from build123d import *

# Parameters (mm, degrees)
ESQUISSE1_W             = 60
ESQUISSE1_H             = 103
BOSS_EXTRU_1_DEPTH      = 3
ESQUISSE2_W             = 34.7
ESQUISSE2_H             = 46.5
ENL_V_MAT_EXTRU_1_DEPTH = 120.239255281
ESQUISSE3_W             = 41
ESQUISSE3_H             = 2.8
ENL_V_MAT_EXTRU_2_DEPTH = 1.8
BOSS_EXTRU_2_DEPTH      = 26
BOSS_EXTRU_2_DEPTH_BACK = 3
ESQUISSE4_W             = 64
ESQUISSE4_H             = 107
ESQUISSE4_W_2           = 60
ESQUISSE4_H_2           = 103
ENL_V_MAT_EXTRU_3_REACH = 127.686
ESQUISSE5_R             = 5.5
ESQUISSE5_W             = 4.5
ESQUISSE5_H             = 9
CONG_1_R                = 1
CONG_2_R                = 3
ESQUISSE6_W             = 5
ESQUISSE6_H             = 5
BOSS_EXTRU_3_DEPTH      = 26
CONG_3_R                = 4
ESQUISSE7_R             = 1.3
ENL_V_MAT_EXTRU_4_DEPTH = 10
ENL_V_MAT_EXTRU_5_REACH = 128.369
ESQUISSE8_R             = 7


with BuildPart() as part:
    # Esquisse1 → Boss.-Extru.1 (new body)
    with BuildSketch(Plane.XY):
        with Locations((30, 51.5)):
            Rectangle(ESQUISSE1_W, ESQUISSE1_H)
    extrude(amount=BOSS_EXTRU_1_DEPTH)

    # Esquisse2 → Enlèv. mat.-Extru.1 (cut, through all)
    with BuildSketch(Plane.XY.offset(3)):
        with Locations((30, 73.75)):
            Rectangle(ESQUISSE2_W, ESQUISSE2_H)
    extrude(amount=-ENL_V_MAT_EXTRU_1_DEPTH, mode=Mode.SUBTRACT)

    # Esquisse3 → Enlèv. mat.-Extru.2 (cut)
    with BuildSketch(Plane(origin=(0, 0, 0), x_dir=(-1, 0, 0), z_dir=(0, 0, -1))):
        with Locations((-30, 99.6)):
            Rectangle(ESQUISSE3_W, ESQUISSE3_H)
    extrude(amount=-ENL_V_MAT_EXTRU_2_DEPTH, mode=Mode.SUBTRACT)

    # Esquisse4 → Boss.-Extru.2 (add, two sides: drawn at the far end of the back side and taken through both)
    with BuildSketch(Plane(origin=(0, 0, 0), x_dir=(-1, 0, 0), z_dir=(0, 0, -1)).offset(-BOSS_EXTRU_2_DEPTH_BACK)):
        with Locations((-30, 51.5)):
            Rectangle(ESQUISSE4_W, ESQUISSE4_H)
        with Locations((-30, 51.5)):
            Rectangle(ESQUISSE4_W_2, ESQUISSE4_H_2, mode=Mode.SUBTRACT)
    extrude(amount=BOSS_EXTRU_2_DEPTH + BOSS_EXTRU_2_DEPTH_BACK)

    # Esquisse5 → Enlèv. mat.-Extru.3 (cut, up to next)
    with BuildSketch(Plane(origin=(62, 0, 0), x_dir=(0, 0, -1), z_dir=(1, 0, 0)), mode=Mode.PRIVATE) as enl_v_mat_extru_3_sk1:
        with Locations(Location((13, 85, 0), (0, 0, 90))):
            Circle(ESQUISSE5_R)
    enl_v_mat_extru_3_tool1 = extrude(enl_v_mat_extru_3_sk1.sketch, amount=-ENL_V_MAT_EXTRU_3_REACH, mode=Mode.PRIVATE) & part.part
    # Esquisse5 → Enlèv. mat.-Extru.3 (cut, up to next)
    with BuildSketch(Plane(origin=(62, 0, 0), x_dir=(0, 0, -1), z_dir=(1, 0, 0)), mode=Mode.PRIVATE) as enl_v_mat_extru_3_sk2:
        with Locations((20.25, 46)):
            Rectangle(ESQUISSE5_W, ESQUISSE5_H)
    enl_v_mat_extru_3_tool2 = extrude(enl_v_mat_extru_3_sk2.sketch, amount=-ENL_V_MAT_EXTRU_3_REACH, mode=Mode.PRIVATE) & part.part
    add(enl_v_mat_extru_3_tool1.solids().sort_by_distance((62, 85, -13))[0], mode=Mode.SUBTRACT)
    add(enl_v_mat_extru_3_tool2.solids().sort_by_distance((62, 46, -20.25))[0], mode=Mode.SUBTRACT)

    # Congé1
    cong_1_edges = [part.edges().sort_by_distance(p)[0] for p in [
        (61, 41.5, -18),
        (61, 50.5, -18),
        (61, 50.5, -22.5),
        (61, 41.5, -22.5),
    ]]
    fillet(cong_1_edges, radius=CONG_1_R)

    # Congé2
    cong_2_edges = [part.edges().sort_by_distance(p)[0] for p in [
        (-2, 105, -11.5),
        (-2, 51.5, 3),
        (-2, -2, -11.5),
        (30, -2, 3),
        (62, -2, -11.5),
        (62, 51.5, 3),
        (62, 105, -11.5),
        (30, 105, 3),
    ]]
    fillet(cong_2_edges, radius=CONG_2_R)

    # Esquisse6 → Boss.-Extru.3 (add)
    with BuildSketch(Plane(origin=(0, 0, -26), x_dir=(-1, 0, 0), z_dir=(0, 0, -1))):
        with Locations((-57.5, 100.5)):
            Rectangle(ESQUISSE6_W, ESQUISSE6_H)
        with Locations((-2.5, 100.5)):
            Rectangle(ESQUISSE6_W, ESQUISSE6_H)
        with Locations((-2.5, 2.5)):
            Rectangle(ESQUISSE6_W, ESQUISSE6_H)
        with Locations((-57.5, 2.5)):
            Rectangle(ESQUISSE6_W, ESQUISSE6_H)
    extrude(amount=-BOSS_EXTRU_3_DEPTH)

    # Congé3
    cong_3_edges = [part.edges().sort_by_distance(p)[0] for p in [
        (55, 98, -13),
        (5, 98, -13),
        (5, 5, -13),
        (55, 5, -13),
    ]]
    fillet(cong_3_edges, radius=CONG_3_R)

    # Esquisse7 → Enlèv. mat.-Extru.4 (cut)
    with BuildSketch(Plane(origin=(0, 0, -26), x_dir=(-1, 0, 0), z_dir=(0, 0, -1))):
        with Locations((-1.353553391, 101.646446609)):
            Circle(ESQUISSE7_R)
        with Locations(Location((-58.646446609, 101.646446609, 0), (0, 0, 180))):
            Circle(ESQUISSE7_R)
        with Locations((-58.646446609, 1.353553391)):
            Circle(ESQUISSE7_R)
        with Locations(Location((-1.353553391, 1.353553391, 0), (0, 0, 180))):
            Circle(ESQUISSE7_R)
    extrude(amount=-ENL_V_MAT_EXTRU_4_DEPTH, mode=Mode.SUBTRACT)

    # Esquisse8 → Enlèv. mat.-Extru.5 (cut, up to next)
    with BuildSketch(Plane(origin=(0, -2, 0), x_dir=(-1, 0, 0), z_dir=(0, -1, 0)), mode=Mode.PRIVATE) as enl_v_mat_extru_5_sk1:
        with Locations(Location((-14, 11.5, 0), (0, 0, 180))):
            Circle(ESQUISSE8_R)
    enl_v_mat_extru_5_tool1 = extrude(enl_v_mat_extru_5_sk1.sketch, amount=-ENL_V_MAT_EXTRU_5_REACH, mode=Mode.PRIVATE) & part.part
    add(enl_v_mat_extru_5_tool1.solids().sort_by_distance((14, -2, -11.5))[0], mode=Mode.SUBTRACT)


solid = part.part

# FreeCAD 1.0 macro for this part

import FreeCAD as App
import Part
import Sketcher

V = App.Vector


def edges_at(feature, points):
    """Names of the edges that pass closest to the given points."""
    edges = feature.Shape.Edges
    near = lambda p: min(range(len(edges)), key=lambda i: edges[i].distToShape(Part.Vertex(*p))[0])
    return sorted({f"Edge{near(p) + 1}" for p in points})


def add_polygon(sketch, points):
    """Adds a closed chain of lines whose ends are joined by coincident constraints."""
    first, n = sketch.GeometryCount, len(points)
    for a, b in zip(points, points[1:] + points[:1]):
        sketch.addGeometry(Part.LineSegment(App.Vector(*a, 0), App.Vector(*b, 0)), False)
    for i in range(n):
        sketch.addConstraint(Sketcher.Constraint("Coincident", first + i, 2, first + (i + 1) % n, 1))

doc = App.newDocument("Part")
body = doc.addObject("PartDesign::Body", "Body")

# Sketch on XY plane
sketch1 = body.newObject("Sketcher::SketchObject", "Sketch")
sketch1.AttachmentSupport = (doc.getObject("XY_Plane"), [""])
sketch1.MapMode = "FlatFace"
add_polygon(sketch1, [(0, 103), (0, 0), (60, 0), (60, 103)])  # lines 0-3
sketch1.addConstraint(Sketcher.Constraint("Vertical", 0))
sketch1.addConstraint(Sketcher.Constraint("Horizontal", 1))
sketch1.addConstraint(Sketcher.Constraint("Vertical", 2))
sketch1.addConstraint(Sketcher.Constraint("Horizontal", 3))
sketch1.addConstraint(Sketcher.Constraint("Coincident", 0, 2, -1, 1))
sketch1.addConstraint(Sketcher.Constraint("DistanceX", 1, 1, 1, 2, 60.0))
sketch1.addConstraint(Sketcher.Constraint("DistanceY", 0, 2, 0, 1, 103.0))
pad1 = body.newObject("PartDesign::Pad", "Pad")
pad1.Profile = sketch1
pad1.Length = 3

# Sketch on XY plane
sketch2 = body.newObject("Sketcher::SketchObject", "Sketch001")
sketch2.AttachmentSupport = (doc.getObject("XY_Plane"), [""])
sketch2.MapMode = "FlatFace"
sketch2.AttachmentOffset = App.Placement(V(0, 0, 3), App.Rotation())
add_polygon(sketch2, [(12.65, 97), (12.65, 50.5), (47.35, 50.5), (47.35, 97)])  # lines 0-3
sketch2.addConstraint(Sketcher.Constraint("Vertical", 0))
sketch2.addConstraint(Sketcher.Constraint("Horizontal", 1))
sketch2.addConstraint(Sketcher.Constraint("Vertical", 2))
sketch2.addConstraint(Sketcher.Constraint("Horizontal", 3))
sketch2.addConstraint(Sketcher.Constraint("DistanceX", 1, 1, 1, 2, 34.7))
sketch2.addConstraint(Sketcher.Constraint("DistanceY", 0, 2, 0, 1, 46.5))
sketch2.addConstraint(Sketcher.Constraint("DistanceY", -1, 1, 2, 2, 97.0))
sketch2.addConstraint(Sketcher.Constraint("DistanceX", -1, 1, 0, 2, 12.65))
pocket1 = body.newObject("PartDesign::Pocket", "Pocket")
pocket1.Profile = sketch2
pocket1.Type = "ThroughAll"

# Sketch on XY plane
sketch3 = body.newObject("Sketcher::SketchObject", "Sketch002")
sketch3.AttachmentSupport = (doc.getObject("XY_Plane"), [""])
sketch3.MapMode = "FlatFace"
add_polygon(sketch3, [(50.5, 101), (50.5, 98.2), (9.5, 98.2), (9.5, 101)])  # lines 0-3
sketch3.addConstraint(Sketcher.Constraint("Vertical", 0))
sketch3.addConstraint(Sketcher.Constraint("Horizontal", 1))
sketch3.addConstraint(Sketcher.Constraint("Vertical", 2))
sketch3.addConstraint(Sketcher.Constraint("Horizontal", 3))
sketch3.addConstraint(Sketcher.Constraint("DistanceX", 1, 2, 1, 1, 41.0))
sketch3.addConstraint(Sketcher.Constraint("DistanceY", 0, 2, 0, 1, 2.8))
sketch3.addConstraint(Sketcher.Constraint("DistanceY", -1, 1, 2, 2, 101.0))
sketch3.addConstraint(Sketcher.Constraint("DistanceX", -1, 1, 0, 2, 50.5))
pocket2 = body.newObject("PartDesign::Pocket", "Pocket001")
pocket2.Profile = sketch3
pocket2.Length = 1.8
pocket2.Reversed = True

# Sketch on XY plane
sketch4 = body.newObject("Sketcher::SketchObject", "Sketch003")
sketch4.AttachmentSupport = (doc.getObject("XY_Plane"), [""])
sketch4.MapMode = "FlatFace"
add_polygon(sketch4, [(62, 105), (62, -2), (-2, -2), (-2, 105)])  # lines 0-3
add_polygon(sketch4, [(0, 0), (60, 0), (60, 103), (0, 103)])  # lines 4-7
sketch4.addConstraint(Sketcher.Constraint("Vertical", 0))
sketch4.addConstraint(Sketcher.Constraint("Horizontal", 1))
sketch4.addConstraint(Sketcher.Constraint("Vertical", 2))
sketch4.addConstraint(Sketcher.Constraint("Horizontal", 3))
sketch4.addConstraint(Sketcher.Constraint("Horizontal", 4))
sketch4.addConstraint(Sketcher.Constraint("Vertical", 5))
sketch4.addConstraint(Sketcher.Constraint("Horizontal", 6))
sketch4.addConstraint(Sketcher.Constraint("Vertical", 7))
sketch4.addConstraint(Sketcher.Constraint("Coincident", 7, 2, -1, 1))
sketch4.addConstraint(Sketcher.Constraint("DistanceX", 1, 2, 1, 1, 64.0))
sketch4.addConstraint(Sketcher.Constraint("DistanceX", 4, 1, 4, 2, 60.0))
sketch4.addConstraint(Sketcher.Constraint("DistanceY", 0, 2, 0, 1, 107.0))
sketch4.addConstraint(Sketcher.Constraint("DistanceY", 5, 1, 5, 2, 103.0))
sketch4.addConstraint(Sketcher.Constraint("DistanceX", -1, 1, 0, 2, 62.0))
sketch4.addConstraint(Sketcher.Constraint("DistanceY", 0, 2, -1, 1, 2.0))
pad2 = body.newObject("PartDesign::Pad", "Pad001")
pad2.Profile = sketch4
pad2.Type = "TwoLengths"
pad2.Length = 26
pad2.Length2 = 3
pad2.Reversed = True

# Sketch on YZ plane
sketch5 = body.newObject("Sketcher::SketchObject", "Sketch004")
sketch5.AttachmentSupport = (doc.getObject("YZ_Plane"), [""])
sketch5.MapMode = "FlatFace"
sketch5.AttachmentOffset = App.Placement(V(0, 0, 62), App.Rotation())
sketch5.addGeometry(Part.Circle(V(85, -13, 0), V(0, 0, 1), 5.5), False)
sketch5.addConstraint(Sketcher.Constraint("Diameter", 0, 11.0))
sketch5.addConstraint(Sketcher.Constraint("DistanceX", -1, 1, 0, 3, 85.0))
sketch5.addConstraint(Sketcher.Constraint("DistanceY", 0, 3, -1, 1, 13.0))
pocket3 = body.newObject("PartDesign::Pocket", "Pocket002")
pocket3.Profile = sketch5
pocket3.Type = "UpToFirst"

# Sketch on YZ plane
sketch6 = body.newObject("Sketcher::SketchObject", "Sketch005")
sketch6.AttachmentSupport = (doc.getObject("YZ_Plane"), [""])
sketch6.MapMode = "FlatFace"
sketch6.AttachmentOffset = App.Placement(V(0, 0, 62), App.Rotation())
add_polygon(sketch6, [(50.5, -18), (41.5, -18), (41.5, -22.5), (50.5, -22.5)])  # lines 0-3
sketch6.addConstraint(Sketcher.Constraint("Horizontal", 0))
sketch6.addConstraint(Sketcher.Constraint("Vertical", 1))
sketch6.addConstraint(Sketcher.Constraint("Horizontal", 2))
sketch6.addConstraint(Sketcher.Constraint("Vertical", 3))
sketch6.addConstraint(Sketcher.Constraint("DistanceX", 0, 2, 0, 1, 9.0))
sketch6.addConstraint(Sketcher.Constraint("DistanceY", 1, 2, 1, 1, 4.5))
sketch6.addConstraint(Sketcher.Constraint("DistanceY", 0, 2, -1, 1, 18.0))
sketch6.addConstraint(Sketcher.Constraint("DistanceX", -1, 1, 0, 2, 41.5))
pocket4 = body.newObject("PartDesign::Pocket", "Pocket003")
pocket4.Profile = sketch6
pocket4.Type = "UpToFirst"
doc.recompute()

fillet = body.newObject("PartDesign::Fillet", "Fillet")
fillet.Base = (pocket4, edges_at(pocket4, [
    (61, 41.5, -18),
    (61, 50.5, -18),
    (61, 50.5, -22.5),
    (61, 41.5, -22.5),
]))
fillet.Radius = 1
doc.recompute()

fillet2 = body.newObject("PartDesign::Fillet", "Fillet001")
fillet2.Base = (fillet, edges_at(fillet, [
    (-2, 105, -11.5),
    (-2, 51.5, 3),
    (-2, -2, -11.5),
    (30, -2, 3),
    (62, -2, -11.5),
    (62, 51.5, 3),
    (62, 105, -11.5),
    (30, 105, 3),
]))
fillet2.Radius = 3

# Sketch on XY plane
sketch7 = body.newObject("Sketcher::SketchObject", "Sketch006")
sketch7.AttachmentSupport = (doc.getObject("XY_Plane"), [""])
sketch7.MapMode = "FlatFace"
sketch7.AttachmentOffset = App.Placement(V(0, 0, -26), App.Rotation())
add_polygon(sketch7, [(60, 103), (60, 98), (55, 98), (55, 103)])  # lines 0-3
add_polygon(sketch7, [(5, 103), (5, 98), (0, 98), (0, 103)])  # lines 4-7
add_polygon(sketch7, [(5, 5), (5, 0), (0, 0), (0, 5)])  # lines 8-11
add_polygon(sketch7, [(60, 5), (60, 0), (55, 0), (55, 5)])  # lines 12-15
sketch7.addConstraint(Sketcher.Constraint("Vertical", 0))
sketch7.addConstraint(Sketcher.Constraint("Horizontal", 1))
sketch7.addConstraint(Sketcher.Constraint("Vertical", 2))
sketch7.addConstraint(Sketcher.Constraint("Horizontal", 3))
sketch7.addConstraint(Sketcher.Constraint("Vertical", 4))
sketch7.addConstraint(Sketcher.Constraint("Horizontal", 5))
sketch7.addConstraint(Sketcher.Constraint("Vertical", 6))
sketch7.addConstraint(Sketcher.Constraint("Horizontal", 7))
sketch7.addConstraint(Sketcher.Constraint("Vertical", 8))
sketch7.addConstraint(Sketcher.Constraint("Horizontal", 9))
sketch7.addConstraint(Sketcher.Constraint("Vertical", 10))
sketch7.addConstraint(Sketcher.Constraint("Horizontal", 11))
sketch7.addConstraint(Sketcher.Constraint("Vertical", 12))
sketch7.addConstraint(Sketcher.Constraint("Horizontal", 13))
sketch7.addConstraint(Sketcher.Constraint("Vertical", 14))
sketch7.addConstraint(Sketcher.Constraint("Horizontal", 15))
sketch7.addConstraint(Sketcher.Constraint("Coincident", 9, 2, -1, 1))
sketch7.addConstraint(Sketcher.Constraint("PointOnObject", 5, 2, -2))
sketch7.addConstraint(Sketcher.Constraint("PointOnObject", 12, 2, -1))
sketch7.addConstraint(Sketcher.Constraint("Horizontal", 1, 2, 4, 2))
sketch7.addConstraint(Sketcher.Constraint("Horizontal", 3, 2, 6, 2))
sketch7.addConstraint(Sketcher.Constraint("Horizontal", 11, 2, 14, 2))
sketch7.addConstraint(Sketcher.Constraint("Vertical", 7, 2, 8, 2))
sketch7.addConstraint(Sketcher.Constraint("Vertical", 3, 2, 12, 2))
sketch7.addConstraint(Sketcher.Constraint("Vertical", 2, 2, 13, 2))
sketch7.addConstraint(Sketcher.Constraint("Equal", 3, 5))
sketch7.addConstraint(Sketcher.Constraint("Equal", 15, 0))
sketch7.addConstraint(Sketcher.Constraint("Equal", 6, 8))
sketch7.addConstraint(Sketcher.Constraint("DistanceX", 1, 2, 1, 1, 5.0))
sketch7.addConstraint(Sketcher.Constraint("DistanceX", -1, 1, 0, 2, 60.0))
sketch7.addConstraint(Sketcher.Constraint("DistanceY", -1, 1, 0, 2, 98.0))
pad3 = body.newObject("PartDesign::Pad", "Pad002")
pad3.Profile = sketch7
pad3.Length = 26
doc.recompute()

fillet3 = body.newObject("PartDesign::Fillet", "Fillet002")
fillet3.Base = (pad3, edges_at(pad3, [
    (55, 98, -13),
    (5, 98, -13),
    (5, 5, -13),
    (55, 5, -13),
]))
fillet3.Radius = 4

# Sketch on XY plane
sketch8 = body.newObject("Sketcher::SketchObject", "Sketch007")
sketch8.AttachmentSupport = (doc.getObject("XY_Plane"), [""])
sketch8.MapMode = "FlatFace"
sketch8.AttachmentOffset = App.Placement(V(0, 0, -26), App.Rotation())
sketch8.addGeometry(Part.Circle(V(1.353553, 101.646447, 0), V(0, 0, 1), 1.3), False)
sketch8.addGeometry(Part.Circle(V(58.646447, 101.646447, 0), V(0, 0, 1), 1.3), False)
sketch8.addGeometry(Part.Circle(V(58.646447, 1.353553, 0), V(0, 0, 1), 1.3), False)
sketch8.addGeometry(Part.Circle(V(1.353553, 1.353553, 0), V(0, 0, 1), 1.3), False)
sketch8.addConstraint(Sketcher.Constraint("Equal", 0, 1))
sketch8.addConstraint(Sketcher.Constraint("Equal", 1, 2))
sketch8.addConstraint(Sketcher.Constraint("Equal", 2, 3))
sketch8.addConstraint(Sketcher.Constraint("Horizontal", 0, 3, 1, 3))
sketch8.addConstraint(Sketcher.Constraint("Horizontal", 2, 3, 3, 3))
sketch8.addConstraint(Sketcher.Constraint("Vertical", 1, 3, 2, 3))
sketch8.addConstraint(Sketcher.Constraint("Vertical", 0, 3, 3, 3))
sketch8.addConstraint(Sketcher.Constraint("Diameter", 0, 2.6))
sketch8.addConstraint(Sketcher.Constraint("DistanceX", -1, 1, 0, 3, 1.353553))
sketch8.addConstraint(Sketcher.Constraint("DistanceY", -1, 1, 0, 3, 101.646447))
sketch8.addConstraint(Sketcher.Constraint("DistanceX", -1, 1, 1, 3, 58.646447))
sketch8.addConstraint(Sketcher.Constraint("DistanceY", -1, 1, 2, 3, 1.353553))
pocket5 = body.newObject("PartDesign::Pocket", "Pocket004")
pocket5.Profile = sketch8
pocket5.Length = 10
pocket5.Reversed = True

# Sketch on XZ plane
sketch9 = body.newObject("Sketcher::SketchObject", "Sketch008")
sketch9.AttachmentSupport = (doc.getObject("XZ_Plane"), [""])
sketch9.MapMode = "FlatFace"
sketch9.AttachmentOffset = App.Placement(V(0, 0, 2), App.Rotation())
sketch9.addGeometry(Part.Circle(V(14, -11.5, 0), V(0, 0, 1), 7), False)
sketch9.addConstraint(Sketcher.Constraint("Diameter", 0, 14.0))
sketch9.addConstraint(Sketcher.Constraint("DistanceX", -1, 1, 0, 3, 14.0))
sketch9.addConstraint(Sketcher.Constraint("DistanceY", 0, 3, -1, 1, 11.5))
pocket6 = body.newObject("PartDesign::Pocket", "Pocket005")
pocket6.Profile = sketch9
pocket6.Type = "UpToFirst"

doc.recompute()
